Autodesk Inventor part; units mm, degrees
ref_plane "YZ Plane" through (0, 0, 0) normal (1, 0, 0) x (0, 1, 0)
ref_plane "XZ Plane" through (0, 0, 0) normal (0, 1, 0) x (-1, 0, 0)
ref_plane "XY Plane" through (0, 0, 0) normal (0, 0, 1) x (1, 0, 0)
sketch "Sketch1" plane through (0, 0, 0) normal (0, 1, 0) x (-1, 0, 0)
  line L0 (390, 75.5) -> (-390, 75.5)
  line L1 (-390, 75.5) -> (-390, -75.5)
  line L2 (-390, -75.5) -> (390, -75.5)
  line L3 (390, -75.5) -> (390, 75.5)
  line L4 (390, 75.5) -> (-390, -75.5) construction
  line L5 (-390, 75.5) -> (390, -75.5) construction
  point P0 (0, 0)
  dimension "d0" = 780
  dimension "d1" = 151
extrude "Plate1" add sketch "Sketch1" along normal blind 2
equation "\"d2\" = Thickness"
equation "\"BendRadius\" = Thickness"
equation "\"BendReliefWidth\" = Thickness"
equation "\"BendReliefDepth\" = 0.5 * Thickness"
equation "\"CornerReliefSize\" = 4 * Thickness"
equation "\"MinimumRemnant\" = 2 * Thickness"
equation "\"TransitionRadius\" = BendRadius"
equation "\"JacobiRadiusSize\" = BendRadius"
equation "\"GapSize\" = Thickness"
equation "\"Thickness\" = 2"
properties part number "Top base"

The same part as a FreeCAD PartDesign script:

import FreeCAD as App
import Part
import Sketcher

doc = App.newDocument("Part")
body = doc.addObject("PartDesign::Body", "Body")

sketch1 = doc.addObject("Sketcher::SketchObject", "Sketch")
body.addObject(sketch1)
sketch1.AttachmentSupport = (doc.XZ_Plane, [""])
sketch1.MapMode = "FlatFace"
sketch1.addGeometry(Part.LineSegment(App.Vector(-390, -76, 0), App.Vector(-390, 76, 0)), False)
sketch1.addGeometry(Part.LineSegment(App.Vector(-390, 76, 0), App.Vector(390, 76, 0)), False)
sketch1.addGeometry(Part.LineSegment(App.Vector(390, 76, 0), App.Vector(390, -76, 0)), False)
sketch1.addGeometry(Part.LineSegment(App.Vector(390, -76, 0), App.Vector(-390, -76, 0)), False)
sketch1.addConstraint(Sketcher.Constraint("Coincident", 0, 2, 1, 1))
sketch1.addConstraint(Sketcher.Constraint("Coincident", 1, 2, 2, 1))
sketch1.addConstraint(Sketcher.Constraint("Coincident", 2, 2, 3, 1))
sketch1.addConstraint(Sketcher.Constraint("Coincident", 3, 2, 0, 1))
sketch1.addConstraint(Sketcher.Constraint("Vertical", 0))
sketch1.addConstraint(Sketcher.Constraint("Horizontal", 1))
sketch1.addConstraint(Sketcher.Constraint("Vertical", 2))
sketch1.addConstraint(Sketcher.Constraint("Horizontal", 3))
sketch1.addConstraint(Sketcher.Constraint("Symmetric", 0, 2, 2, 2, -1, 1))
sketch1.addConstraint(Sketcher.Constraint("DistanceX", 1, 1, 1, 2, 780.0))
sketch1.addConstraint(Sketcher.Constraint("DistanceY", 0, 1, 0, 2, 151.0))
pad1 = doc.addObject("PartDesign::Pad", "Pad")
body.addObject(pad1)
pad1.Profile = sketch1
pad1.Length = 2
pad1.Reversed = True

doc.recompute()
